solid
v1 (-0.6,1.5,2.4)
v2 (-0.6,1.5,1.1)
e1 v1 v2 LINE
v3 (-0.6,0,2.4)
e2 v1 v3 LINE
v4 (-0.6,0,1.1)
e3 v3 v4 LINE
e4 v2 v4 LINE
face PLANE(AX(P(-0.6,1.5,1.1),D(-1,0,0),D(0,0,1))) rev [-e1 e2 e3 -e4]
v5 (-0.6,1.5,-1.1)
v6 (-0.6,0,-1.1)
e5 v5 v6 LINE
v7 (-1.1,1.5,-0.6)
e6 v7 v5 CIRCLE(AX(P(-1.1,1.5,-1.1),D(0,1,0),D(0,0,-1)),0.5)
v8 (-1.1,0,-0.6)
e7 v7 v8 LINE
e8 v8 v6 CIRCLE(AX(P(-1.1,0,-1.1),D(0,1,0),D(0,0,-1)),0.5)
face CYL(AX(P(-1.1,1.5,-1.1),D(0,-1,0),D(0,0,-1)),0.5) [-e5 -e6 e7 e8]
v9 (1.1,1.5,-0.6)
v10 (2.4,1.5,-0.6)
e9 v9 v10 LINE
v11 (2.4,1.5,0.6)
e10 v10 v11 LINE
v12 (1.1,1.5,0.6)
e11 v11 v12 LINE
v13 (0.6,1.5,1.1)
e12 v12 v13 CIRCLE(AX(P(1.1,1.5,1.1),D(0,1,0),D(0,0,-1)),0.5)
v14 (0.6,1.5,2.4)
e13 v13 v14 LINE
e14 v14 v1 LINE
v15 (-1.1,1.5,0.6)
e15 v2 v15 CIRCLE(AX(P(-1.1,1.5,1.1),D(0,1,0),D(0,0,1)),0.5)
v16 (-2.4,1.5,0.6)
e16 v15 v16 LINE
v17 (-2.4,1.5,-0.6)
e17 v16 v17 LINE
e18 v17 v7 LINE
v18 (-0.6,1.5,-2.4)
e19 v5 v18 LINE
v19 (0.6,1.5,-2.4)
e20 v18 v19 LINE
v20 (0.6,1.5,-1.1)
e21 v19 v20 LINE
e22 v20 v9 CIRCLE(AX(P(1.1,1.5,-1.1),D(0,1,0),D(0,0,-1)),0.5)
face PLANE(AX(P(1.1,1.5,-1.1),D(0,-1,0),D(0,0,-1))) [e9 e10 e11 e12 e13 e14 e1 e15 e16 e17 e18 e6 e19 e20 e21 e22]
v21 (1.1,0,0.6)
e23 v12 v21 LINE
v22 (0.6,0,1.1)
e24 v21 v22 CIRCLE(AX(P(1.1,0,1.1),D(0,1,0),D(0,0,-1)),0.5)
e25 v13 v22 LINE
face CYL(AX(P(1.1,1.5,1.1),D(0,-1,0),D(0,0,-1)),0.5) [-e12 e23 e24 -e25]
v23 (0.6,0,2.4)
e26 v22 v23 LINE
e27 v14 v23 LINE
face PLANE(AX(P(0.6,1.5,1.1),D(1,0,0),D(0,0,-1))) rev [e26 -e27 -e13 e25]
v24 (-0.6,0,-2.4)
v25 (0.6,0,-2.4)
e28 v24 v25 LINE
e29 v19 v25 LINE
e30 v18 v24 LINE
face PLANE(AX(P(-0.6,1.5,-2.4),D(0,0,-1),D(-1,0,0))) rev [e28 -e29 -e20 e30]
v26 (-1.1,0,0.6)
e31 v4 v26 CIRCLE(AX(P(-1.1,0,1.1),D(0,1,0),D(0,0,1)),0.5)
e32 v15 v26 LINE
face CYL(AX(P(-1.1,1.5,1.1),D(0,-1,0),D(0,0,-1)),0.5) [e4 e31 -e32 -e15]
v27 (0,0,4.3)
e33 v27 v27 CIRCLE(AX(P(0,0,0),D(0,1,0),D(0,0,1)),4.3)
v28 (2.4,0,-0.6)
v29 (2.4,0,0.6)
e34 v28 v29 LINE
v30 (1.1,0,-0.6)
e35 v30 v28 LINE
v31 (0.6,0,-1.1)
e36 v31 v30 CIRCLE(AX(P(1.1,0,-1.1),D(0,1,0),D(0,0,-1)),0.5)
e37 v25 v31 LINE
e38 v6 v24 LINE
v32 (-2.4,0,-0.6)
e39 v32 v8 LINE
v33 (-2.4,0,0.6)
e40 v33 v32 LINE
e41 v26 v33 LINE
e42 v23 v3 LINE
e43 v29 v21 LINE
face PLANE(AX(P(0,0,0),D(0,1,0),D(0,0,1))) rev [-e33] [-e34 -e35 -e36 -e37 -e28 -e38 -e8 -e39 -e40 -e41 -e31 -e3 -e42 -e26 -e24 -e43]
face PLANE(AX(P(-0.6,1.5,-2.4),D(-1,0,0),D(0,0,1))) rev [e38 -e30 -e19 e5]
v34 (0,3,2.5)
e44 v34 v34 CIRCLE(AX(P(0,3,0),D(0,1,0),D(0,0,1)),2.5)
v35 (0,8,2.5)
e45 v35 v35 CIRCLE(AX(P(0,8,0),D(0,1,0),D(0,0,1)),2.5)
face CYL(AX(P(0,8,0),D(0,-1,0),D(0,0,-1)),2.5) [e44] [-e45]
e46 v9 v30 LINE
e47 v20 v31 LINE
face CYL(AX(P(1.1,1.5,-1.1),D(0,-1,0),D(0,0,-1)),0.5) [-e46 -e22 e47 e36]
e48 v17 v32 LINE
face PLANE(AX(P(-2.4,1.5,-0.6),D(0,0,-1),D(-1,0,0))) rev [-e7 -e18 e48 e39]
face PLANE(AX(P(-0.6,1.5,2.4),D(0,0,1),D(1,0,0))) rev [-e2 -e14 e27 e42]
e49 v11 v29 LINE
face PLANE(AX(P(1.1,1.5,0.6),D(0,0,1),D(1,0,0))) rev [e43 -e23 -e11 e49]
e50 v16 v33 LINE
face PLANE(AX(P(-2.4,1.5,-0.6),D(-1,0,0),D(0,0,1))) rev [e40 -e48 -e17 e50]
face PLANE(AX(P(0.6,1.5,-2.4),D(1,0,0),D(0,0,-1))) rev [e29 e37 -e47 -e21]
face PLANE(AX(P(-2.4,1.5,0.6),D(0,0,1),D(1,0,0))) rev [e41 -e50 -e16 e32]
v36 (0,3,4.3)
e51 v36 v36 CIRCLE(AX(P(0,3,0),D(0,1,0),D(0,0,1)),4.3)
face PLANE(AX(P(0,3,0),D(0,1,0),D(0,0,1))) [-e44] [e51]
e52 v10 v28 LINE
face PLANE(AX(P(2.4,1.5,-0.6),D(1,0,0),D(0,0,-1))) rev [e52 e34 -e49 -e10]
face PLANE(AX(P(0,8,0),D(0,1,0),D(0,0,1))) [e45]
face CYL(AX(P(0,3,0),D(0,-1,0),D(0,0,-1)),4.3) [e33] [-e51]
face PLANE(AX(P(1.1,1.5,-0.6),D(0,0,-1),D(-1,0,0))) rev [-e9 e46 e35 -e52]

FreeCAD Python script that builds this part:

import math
import FreeCAD as App
import Part
import Sketcher
from FreeCAD import Vector

doc = App.newDocument("Part")
params = doc.addObject("Spreadsheet::Sheet", "Params")
for row, (alias, value) in enumerate([
    ("sketch1_diameter", "8.6 mm"),
    ("pad1_length", "3 mm"),
    ("sketch2_diameter", "5 mm"),
    ("pad2_length", "5 mm"),
    ("sketch3_radius", "0.5 mm"),
    ("sketch3_width", "1.3 mm"),
    ("sketch3_width2", "1.2 mm"),
    ("pocket1_length", "1.5 mm"),
], start=1):
    params.set(f"A{row}", alias)
    params.set(f"B{row}", "=" + value)
    params.setAlias(f"B{row}", alias)

body = doc.addObject("PartDesign::Body", "Body")

# Sketch on XZ plane
sketch1 = body.newObject("Sketcher::SketchObject", "Sketch")
sketch1.AttachmentSupport = (doc.getObject("XZ_Plane"), [""])
sketch1.MapMode = "FlatFace"
sketch1.addGeometry(Part.Circle(Vector(0, 0, 0), Vector(0, 0, 1), 4.3), False)
sketch1.addConstraint(Sketcher.Constraint("Coincident", 0, 3, -1, 1))
sketch1.addConstraint(Sketcher.Constraint("Diameter", 0, 8.6))
sketch1.setExpression("Constraints[1]", "Params.sketch1_diameter")
pad1 = body.newObject("PartDesign::Pad", "Pad")
pad1.Profile = sketch1
pad1.setExpression("Length", "Params.pad1_length")
pad1.Reversed = True

# Sketch on XZ plane
sketch2 = body.newObject("Sketcher::SketchObject", "Sketch001")
sketch2.AttachmentSupport = (doc.getObject("XZ_Plane"), [""])
sketch2.MapMode = "FlatFace"
sketch2.AttachmentOffset = App.Placement(Vector(0, 0, -3), App.Rotation())
sketch2.addGeometry(Part.Circle(Vector(0, 0, 0), Vector(0, 0, 1), 2.5), False)
sketch2.addConstraint(Sketcher.Constraint("Coincident", 0, 3, -1, 1))
sketch2.addConstraint(Sketcher.Constraint("Diameter", 0, 5.0))
sketch2.setExpression("Constraints[1]", "Params.sketch2_diameter")
pad2 = body.newObject("PartDesign::Pad", "Pad001")
pad2.Profile = sketch2
pad2.setExpression("Length", "Params.pad2_length")
pad2.Reversed = True

# Sketch on XZ plane
sketch3 = body.newObject("Sketcher::SketchObject", "Sketch002")
sketch3.AttachmentSupport = (doc.getObject("XZ_Plane"), [""])
sketch3.MapMode = "FlatFace"
sketch3.addGeometry(Part.LineSegment(Vector(-0.6, 2.4, 0), Vector(-0.6, 1.1, 0)), False)
sketch3.addGeometry(Part.ArcOfCircle(Part.Circle(Vector(-1.1, 1.1, 0), Vector(0, 0, 1), 0.5), math.radians(-90), math.radians(0)), False)
sketch3.addGeometry(Part.LineSegment(Vector(-1.1, 0.6, 0), Vector(-2.4, 0.6, 0)), False)
sketch3.addGeometry(Part.LineSegment(Vector(-2.4, 0.6, 0), Vector(-2.4, -0.6, 0)), False)
sketch3.addGeometry(Part.LineSegment(Vector(-2.4, -0.6, 0), Vector(-1.1, -0.6, 0)), False)
sketch3.addGeometry(Part.ArcOfCircle(Part.Circle(Vector(-1.1, -1.1, 0), Vector(0, 0, 1), 0.5), math.radians(0), math.radians(90)), False)
sketch3.addGeometry(Part.LineSegment(Vector(-0.6, -1.1, 0), Vector(-0.6, -2.4, 0)), False)
sketch3.addGeometry(Part.LineSegment(Vector(-0.6, -2.4, 0), Vector(0.6, -2.4, 0)), False)
sketch3.addGeometry(Part.LineSegment(Vector(0.6, -2.4, 0), Vector(0.6, -1.1, 0)), False)
sketch3.addGeometry(Part.ArcOfCircle(Part.Circle(Vector(1.1, -1.1, 0), Vector(0, 0, 1), 0.5), math.radians(90), math.radians(180)), False)
sketch3.addGeometry(Part.LineSegment(Vector(1.1, -0.6, 0), Vector(2.4, -0.6, 0)), False)
sketch3.addGeometry(Part.LineSegment(Vector(2.4, -0.6, 0), Vector(2.4, 0.6, 0)), False)
sketch3.addGeometry(Part.LineSegment(Vector(2.4, 0.6, 0), Vector(1.1, 0.6, 0)), False)
sketch3.addGeometry(Part.ArcOfCircle(Part.Circle(Vector(1.1, 1.1, 0), Vector(0, 0, 1), 0.5), math.radians(180), math.radians(270)), False)
sketch3.addGeometry(Part.LineSegment(Vector(0.6, 1.1, 0), Vector(0.6, 2.4, 0)), False)
sketch3.addGeometry(Part.LineSegment(Vector(0.6, 2.4, 0), Vector(-0.6, 2.4, 0)), False)
sketch3.addConstraint(Sketcher.Constraint("Tangent", 0, 2, 1, 2))
sketch3.addConstraint(Sketcher.Constraint("Tangent", 1, 1, 2, 1))
sketch3.addConstraint(Sketcher.Constraint("Coincident", 2, 2, 3, 1))
sketch3.addConstraint(Sketcher.Constraint("Coincident", 3, 2, 4, 1))
sketch3.addConstraint(Sketcher.Constraint("Tangent", 4, 2, 5, 2))
sketch3.addConstraint(Sketcher.Constraint("Tangent", 5, 1, 6, 1))
sketch3.addConstraint(Sketcher.Constraint("Coincident", 6, 2, 7, 1))
sketch3.addConstraint(Sketcher.Constraint("Coincident", 7, 2, 8, 1))
sketch3.addConstraint(Sketcher.Constraint("Tangent", 8, 2, 9, 2))
sketch3.addConstraint(Sketcher.Constraint("Tangent", 9, 1, 10, 1))
sketch3.addConstraint(Sketcher.Constraint("Coincident", 10, 2, 11, 1))
sketch3.addConstraint(Sketcher.Constraint("Coincident", 11, 2, 12, 1))
sketch3.addConstraint(Sketcher.Constraint("Tangent", 12, 2, 13, 2))
sketch3.addConstraint(Sketcher.Constraint("Tangent", 13, 1, 14, 1))
sketch3.addConstraint(Sketcher.Constraint("Coincident", 14, 2, 15, 1))
sketch3.addConstraint(Sketcher.Constraint("Coincident", 15, 2, 0, 1))
sketch3.addConstraint(Sketcher.Constraint("Vertical", 0))
sketch3.addConstraint(Sketcher.Constraint("Horizontal", 2))
sketch3.addConstraint(Sketcher.Constraint("Vertical", 3))
sketch3.addConstraint(Sketcher.Constraint("Horizontal", 4))
sketch3.addConstraint(Sketcher.Constraint("Vertical", 6))
sketch3.addConstraint(Sketcher.Constraint("Horizontal", 7))
sketch3.addConstraint(Sketcher.Constraint("Vertical", 8))
sketch3.addConstraint(Sketcher.Constraint("Horizontal", 10))
sketch3.addConstraint(Sketcher.Constraint("Vertical", 11))
sketch3.addConstraint(Sketcher.Constraint("Horizontal", 12))
sketch3.addConstraint(Sketcher.Constraint("Vertical", 14))
sketch3.addConstraint(Sketcher.Constraint("Horizontal", 15))
sketch3.addConstraint(Sketcher.Constraint("Equal", 1, 5))
sketch3.addConstraint(Sketcher.Constraint("Equal", 5, 9))
sketch3.addConstraint(Sketcher.Constraint("Equal", 9, 13))
sketch3.addConstraint(Sketcher.Constraint("Symmetric", 1, 3, 9, 3, -1, 1))
sketch3.addConstraint(Sketcher.Constraint("Symmetric", 5, 3, 13, 3, -1, 1))
sketch3.addConstraint(Sketcher.Constraint("Symmetric", 5, 3, 9, 3, -2))
sketch3.addConstraint(Sketcher.Constraint("Equal", 4, 10))
sketch3.addConstraint(Sketcher.Constraint("Equal", 12, 0))
sketch3.addConstraint(Sketcher.Constraint("Equal", 15, 3))
sketch3.addConstraint(Sketcher.Constraint("Equal", 0, 6))
sketch3.addConstraint(Sketcher.Constraint("Radius", 1, 0.5))
sketch3.addConstraint(Sketcher.Constraint("DistanceX", 2, 2, 2, 1, 1.3))
sketch3.addConstraint(Sketcher.Constraint("DistanceX", 7, 1, 7, 2, 1.2))
sketch3.setExpression("Constraints[38]", "Params.sketch3_radius")
sketch3.setExpression("Constraints[39]", "Params.sketch3_width")
sketch3.setExpression("Constraints[40]", "Params.sketch3_width2")
pocket1 = body.newObject("PartDesign::Pocket", "Pocket")
pocket1.Profile = sketch3
pocket1.setExpression("Length", "Params.pocket1_length")

doc.recompute()
